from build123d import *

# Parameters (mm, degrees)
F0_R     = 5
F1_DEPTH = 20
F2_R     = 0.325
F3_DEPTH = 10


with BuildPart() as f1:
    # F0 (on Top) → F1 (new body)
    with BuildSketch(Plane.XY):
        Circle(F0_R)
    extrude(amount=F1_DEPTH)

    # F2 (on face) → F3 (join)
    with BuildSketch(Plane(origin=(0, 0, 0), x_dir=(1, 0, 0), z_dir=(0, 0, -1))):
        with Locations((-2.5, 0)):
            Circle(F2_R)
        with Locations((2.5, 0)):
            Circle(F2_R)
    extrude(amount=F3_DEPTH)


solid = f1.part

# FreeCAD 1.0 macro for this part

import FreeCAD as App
import Part
import Sketcher
from FreeCAD import Vector
Q = App.Units.Quantity

doc = App.newDocument("Part")
body = doc.addObject("PartDesign::Body", "Body")

# Sketch on XY plane
sketch1 = body.newObject("Sketcher::SketchObject", "Sketch")
sketch1.AttachmentSupport = (doc.getObject("XY_Plane"), [""])
sketch1.MapMode = "FlatFace"
sketch1.addGeometry(Part.Circle(Vector(0, 0, 0), Vector(0, 0, 1), 5), False)
sketch1.addConstraint([
    Sketcher.Constraint("Coincident", 0, 3, -1, 1),
    Sketcher.Constraint("Diameter", 0, Q("10 mm")),
])
pad1 = body.newObject("PartDesign::Pad", "Pad")
pad1.Profile = sketch1
pad1.Length = 20

# Sketch on XY plane
sketch2 = body.newObject("Sketcher::SketchObject", "Sketch001")
sketch2.AttachmentSupport = (doc.getObject("XY_Plane"), [""])
sketch2.MapMode = "FlatFace"
sketch2.addGeometry([
    Part.Circle(Vector(-2.5, 0, 0), Vector(0, 0, 1), 0.33),
    Part.Circle(Vector(2.5, 0, 0), Vector(0, 0, 1), 0.33),
], False)
sketch2.addConstraint([
    Sketcher.Constraint("Equal", 0, 1),
    Sketcher.Constraint("Symmetric", 0, 3, 1, 3, -1, 1),
    Sketcher.Constraint("PointOnObject", 0, 3, -1),
    Sketcher.Constraint("Diameter", 0, Q("0.65 mm")),
    Sketcher.Constraint("DistanceX", 0, 3, 1, 3, Q("5 mm")),
])
pad2 = body.newObject("PartDesign::Pad", "Pad001")
pad2.Profile = sketch2
pad2.Length = 10
pad2.Reversed = True

doc.recompute()
